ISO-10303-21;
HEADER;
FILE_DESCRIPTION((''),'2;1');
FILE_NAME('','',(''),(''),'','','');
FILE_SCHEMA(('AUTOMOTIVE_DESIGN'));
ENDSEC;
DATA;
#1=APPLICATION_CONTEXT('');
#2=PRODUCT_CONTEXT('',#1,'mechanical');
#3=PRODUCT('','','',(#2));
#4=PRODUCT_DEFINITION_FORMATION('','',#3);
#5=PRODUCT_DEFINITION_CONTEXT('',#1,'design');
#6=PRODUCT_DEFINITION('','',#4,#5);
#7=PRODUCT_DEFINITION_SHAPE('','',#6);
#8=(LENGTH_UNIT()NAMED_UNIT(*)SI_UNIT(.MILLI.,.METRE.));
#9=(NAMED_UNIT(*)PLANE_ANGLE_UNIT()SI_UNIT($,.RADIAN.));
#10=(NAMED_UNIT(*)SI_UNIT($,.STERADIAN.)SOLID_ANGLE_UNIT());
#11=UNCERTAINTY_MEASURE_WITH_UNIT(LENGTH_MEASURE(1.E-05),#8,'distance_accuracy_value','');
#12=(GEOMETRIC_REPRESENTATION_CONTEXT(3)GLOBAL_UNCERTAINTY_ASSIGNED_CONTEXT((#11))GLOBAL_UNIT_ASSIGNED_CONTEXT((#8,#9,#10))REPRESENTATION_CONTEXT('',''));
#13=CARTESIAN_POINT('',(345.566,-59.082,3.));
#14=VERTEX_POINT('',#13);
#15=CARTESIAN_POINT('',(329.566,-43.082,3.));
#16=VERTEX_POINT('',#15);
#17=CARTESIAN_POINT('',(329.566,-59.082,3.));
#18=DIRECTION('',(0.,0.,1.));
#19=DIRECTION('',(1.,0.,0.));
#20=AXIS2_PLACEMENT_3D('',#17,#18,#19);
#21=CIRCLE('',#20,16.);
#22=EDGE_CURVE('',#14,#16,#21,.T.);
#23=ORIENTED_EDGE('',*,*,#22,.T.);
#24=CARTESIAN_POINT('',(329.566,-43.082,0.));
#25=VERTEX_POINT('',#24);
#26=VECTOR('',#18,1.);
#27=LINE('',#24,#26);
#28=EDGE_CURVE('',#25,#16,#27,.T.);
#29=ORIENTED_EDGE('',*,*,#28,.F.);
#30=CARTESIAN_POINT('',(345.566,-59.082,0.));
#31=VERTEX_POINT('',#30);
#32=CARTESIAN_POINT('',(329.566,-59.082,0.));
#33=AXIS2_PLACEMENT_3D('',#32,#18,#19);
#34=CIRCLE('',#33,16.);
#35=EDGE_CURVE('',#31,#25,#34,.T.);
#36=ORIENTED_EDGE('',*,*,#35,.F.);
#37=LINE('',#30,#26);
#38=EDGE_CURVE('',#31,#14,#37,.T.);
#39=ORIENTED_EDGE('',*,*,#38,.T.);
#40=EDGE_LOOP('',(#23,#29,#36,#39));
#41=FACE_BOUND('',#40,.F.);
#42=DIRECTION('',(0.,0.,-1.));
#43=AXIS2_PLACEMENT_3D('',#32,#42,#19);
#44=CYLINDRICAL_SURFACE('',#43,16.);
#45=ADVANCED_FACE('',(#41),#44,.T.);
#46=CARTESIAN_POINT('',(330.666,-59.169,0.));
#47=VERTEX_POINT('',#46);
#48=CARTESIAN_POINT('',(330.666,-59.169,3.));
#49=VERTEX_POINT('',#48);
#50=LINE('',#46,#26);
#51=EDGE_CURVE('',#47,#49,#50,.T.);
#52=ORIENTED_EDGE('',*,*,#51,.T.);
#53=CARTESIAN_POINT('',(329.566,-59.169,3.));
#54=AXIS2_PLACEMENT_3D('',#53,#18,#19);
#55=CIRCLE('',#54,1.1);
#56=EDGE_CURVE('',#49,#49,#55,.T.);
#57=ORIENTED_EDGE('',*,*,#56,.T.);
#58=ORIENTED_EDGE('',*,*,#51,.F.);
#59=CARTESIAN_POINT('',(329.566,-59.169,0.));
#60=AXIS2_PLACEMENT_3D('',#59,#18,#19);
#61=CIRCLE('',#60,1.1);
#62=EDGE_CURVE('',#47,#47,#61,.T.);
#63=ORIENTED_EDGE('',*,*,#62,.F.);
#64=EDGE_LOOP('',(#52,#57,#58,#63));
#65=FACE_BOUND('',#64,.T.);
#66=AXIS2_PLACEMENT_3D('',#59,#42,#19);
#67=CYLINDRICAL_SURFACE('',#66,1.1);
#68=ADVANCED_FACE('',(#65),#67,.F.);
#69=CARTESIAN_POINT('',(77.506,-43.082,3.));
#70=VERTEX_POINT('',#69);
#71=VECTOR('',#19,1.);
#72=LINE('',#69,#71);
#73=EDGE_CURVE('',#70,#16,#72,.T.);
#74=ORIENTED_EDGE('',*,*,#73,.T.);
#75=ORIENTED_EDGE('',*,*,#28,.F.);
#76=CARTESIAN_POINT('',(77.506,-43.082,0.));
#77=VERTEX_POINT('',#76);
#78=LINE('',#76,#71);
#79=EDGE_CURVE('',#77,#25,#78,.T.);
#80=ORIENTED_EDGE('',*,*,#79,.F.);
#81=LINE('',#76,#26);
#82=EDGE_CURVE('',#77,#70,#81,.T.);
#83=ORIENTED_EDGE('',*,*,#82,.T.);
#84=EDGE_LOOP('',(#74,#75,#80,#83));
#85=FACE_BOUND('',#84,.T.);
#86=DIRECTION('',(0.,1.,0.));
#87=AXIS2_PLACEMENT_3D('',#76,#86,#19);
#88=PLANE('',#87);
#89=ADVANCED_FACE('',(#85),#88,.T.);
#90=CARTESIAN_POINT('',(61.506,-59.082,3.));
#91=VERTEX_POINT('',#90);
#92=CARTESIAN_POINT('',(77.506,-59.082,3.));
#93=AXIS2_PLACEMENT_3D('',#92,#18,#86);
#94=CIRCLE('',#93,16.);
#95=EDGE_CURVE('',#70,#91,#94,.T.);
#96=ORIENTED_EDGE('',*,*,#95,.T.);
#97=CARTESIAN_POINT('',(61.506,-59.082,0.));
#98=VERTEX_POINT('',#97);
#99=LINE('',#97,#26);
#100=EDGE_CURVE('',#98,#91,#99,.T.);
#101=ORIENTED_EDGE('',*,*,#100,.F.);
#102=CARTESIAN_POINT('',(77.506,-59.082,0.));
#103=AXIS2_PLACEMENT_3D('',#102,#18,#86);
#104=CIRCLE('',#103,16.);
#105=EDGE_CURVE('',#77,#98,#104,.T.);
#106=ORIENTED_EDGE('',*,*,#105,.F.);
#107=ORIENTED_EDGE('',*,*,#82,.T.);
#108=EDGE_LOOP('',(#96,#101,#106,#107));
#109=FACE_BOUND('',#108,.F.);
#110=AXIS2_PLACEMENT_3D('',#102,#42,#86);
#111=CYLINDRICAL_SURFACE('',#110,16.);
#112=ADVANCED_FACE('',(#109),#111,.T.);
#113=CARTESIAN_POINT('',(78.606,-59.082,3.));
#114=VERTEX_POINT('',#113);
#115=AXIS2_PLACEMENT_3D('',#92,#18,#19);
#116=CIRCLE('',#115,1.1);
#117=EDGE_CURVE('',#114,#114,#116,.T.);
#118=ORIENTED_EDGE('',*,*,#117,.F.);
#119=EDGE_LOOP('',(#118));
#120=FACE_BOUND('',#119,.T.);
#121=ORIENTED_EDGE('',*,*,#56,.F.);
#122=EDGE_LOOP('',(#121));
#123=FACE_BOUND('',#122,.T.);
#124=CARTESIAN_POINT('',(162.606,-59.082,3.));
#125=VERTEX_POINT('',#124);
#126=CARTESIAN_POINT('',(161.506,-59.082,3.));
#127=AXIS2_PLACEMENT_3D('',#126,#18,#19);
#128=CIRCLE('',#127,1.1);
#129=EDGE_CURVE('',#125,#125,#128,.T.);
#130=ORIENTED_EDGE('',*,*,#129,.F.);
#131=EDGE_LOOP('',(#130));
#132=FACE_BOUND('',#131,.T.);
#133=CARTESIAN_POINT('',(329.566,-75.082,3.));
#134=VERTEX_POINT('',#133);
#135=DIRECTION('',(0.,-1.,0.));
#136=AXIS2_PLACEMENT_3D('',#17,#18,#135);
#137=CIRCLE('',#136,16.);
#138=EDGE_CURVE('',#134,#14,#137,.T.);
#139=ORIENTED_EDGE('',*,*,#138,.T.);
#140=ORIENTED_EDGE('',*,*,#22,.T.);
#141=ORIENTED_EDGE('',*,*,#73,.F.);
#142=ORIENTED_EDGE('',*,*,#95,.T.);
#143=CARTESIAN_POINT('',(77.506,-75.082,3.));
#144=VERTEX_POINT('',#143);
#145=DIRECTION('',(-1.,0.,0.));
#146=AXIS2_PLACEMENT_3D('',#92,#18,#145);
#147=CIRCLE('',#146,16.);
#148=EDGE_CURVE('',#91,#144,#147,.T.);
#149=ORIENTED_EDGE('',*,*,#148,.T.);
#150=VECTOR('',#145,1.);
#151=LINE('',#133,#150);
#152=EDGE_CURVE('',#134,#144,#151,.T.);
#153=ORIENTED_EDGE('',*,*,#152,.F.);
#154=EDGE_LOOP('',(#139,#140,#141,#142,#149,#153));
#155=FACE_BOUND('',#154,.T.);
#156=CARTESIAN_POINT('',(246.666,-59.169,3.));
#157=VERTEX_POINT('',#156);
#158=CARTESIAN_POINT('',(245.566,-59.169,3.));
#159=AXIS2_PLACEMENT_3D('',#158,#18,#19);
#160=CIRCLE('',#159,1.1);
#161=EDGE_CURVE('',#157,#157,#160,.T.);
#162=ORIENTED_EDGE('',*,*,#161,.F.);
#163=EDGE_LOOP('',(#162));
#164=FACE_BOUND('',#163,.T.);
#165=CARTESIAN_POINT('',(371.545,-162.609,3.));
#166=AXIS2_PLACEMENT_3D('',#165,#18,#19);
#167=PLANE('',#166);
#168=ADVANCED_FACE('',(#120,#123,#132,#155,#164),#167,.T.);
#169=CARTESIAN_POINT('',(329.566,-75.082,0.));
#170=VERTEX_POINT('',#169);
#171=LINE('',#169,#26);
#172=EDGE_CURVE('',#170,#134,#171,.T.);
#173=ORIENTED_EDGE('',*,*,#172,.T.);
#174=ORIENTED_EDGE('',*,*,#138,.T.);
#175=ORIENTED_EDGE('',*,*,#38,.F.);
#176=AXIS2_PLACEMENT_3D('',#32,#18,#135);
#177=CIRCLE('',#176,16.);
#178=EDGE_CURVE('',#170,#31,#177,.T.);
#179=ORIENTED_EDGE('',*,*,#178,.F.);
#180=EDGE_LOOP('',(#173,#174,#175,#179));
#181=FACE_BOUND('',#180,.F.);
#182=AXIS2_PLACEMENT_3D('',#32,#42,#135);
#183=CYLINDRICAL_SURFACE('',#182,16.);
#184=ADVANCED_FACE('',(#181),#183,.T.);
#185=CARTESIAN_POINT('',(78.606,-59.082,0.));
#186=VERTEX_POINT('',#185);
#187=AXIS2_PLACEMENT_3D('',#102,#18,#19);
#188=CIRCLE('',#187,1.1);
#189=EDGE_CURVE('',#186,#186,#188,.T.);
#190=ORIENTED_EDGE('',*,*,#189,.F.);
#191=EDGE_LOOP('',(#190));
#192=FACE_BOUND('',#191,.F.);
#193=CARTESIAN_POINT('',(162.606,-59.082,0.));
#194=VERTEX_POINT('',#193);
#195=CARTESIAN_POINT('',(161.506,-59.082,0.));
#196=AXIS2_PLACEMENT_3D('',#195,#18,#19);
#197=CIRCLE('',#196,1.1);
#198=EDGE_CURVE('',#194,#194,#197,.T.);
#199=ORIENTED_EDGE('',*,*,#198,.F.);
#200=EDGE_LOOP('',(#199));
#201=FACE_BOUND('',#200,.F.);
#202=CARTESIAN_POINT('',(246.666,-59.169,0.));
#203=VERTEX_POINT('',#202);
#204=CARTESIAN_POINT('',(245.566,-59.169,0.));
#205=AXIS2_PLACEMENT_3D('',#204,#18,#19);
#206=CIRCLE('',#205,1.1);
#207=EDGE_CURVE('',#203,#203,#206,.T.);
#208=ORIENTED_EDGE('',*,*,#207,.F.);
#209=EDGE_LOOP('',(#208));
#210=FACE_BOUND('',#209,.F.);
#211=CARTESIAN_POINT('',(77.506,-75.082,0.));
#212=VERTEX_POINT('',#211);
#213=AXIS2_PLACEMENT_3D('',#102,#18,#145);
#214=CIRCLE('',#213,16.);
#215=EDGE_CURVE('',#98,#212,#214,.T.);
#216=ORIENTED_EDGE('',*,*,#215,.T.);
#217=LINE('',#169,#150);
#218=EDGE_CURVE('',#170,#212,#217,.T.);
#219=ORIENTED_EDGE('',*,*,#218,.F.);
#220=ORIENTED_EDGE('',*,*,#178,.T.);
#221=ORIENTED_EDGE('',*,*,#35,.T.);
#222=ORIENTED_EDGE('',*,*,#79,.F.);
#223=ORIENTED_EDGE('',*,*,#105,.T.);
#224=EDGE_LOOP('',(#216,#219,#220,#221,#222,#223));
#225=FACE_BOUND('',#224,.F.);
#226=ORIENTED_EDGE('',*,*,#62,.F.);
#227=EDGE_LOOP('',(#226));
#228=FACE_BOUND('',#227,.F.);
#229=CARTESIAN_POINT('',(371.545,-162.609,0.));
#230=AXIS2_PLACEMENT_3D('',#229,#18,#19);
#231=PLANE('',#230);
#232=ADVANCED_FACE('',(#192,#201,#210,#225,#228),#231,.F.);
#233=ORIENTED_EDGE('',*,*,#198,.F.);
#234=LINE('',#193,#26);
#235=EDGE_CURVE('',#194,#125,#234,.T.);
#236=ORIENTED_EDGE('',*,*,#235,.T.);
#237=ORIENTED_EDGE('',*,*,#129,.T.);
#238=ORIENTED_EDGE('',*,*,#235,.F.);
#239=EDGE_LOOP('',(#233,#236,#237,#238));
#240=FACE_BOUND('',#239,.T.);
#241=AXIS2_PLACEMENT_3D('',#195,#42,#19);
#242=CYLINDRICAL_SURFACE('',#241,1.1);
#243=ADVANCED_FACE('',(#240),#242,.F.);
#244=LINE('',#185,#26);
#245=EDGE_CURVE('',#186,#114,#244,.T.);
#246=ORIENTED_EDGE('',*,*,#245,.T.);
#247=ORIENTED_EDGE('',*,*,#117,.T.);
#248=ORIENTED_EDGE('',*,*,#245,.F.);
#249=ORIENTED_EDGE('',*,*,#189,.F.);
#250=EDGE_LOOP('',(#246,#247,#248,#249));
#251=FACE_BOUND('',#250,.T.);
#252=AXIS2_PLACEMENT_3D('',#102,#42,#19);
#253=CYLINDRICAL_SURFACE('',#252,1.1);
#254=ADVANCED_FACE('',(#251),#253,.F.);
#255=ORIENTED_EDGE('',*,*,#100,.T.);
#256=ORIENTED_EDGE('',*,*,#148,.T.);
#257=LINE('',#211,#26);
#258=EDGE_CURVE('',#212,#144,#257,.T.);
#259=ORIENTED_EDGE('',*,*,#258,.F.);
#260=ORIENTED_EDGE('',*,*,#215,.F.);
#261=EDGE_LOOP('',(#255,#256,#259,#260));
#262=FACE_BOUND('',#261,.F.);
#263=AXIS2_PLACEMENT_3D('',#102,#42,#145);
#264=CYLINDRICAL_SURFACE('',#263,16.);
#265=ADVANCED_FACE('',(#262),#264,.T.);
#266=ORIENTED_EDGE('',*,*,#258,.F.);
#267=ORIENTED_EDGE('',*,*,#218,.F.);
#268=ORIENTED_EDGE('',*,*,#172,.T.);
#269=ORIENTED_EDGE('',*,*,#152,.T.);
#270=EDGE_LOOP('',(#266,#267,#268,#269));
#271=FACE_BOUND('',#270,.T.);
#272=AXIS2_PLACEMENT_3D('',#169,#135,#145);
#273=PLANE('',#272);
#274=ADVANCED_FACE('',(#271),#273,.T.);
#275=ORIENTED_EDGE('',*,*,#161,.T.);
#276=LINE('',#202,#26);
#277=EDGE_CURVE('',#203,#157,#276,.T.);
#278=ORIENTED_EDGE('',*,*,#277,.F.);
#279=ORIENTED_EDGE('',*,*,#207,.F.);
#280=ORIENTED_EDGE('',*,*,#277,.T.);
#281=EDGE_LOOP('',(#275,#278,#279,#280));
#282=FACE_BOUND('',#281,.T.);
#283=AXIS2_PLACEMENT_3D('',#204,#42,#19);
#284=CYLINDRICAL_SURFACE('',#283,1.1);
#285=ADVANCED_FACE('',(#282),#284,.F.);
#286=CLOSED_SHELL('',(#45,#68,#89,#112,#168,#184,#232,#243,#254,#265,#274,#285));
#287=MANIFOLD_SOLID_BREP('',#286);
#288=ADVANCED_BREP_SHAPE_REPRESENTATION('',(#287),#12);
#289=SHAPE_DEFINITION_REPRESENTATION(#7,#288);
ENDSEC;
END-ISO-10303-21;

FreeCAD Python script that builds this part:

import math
import FreeCAD as App
import Part
import Sketcher
from FreeCAD import Vector

doc = App.newDocument("Part")
params = doc.addObject("Spreadsheet::Sheet", "Params")
for row, (alias, value) in enumerate([
    ("sketch1_radius", "16 mm"),
    ("sketch1_diameter", "2.2 mm"),
    ("sketch1_width", "252.06 mm"),
    ("pad1_length", "3 mm"),
], start=1):
    params.set(f"A{row}", alias)
    params.set(f"B{row}", "=" + value)
    params.setAlias(f"B{row}", alias)

body = doc.addObject("PartDesign::Body", "Body")

# Sketch on XY plane
sketch1 = doc.addObject("Sketcher::SketchObject", "Sketch")
body.addObject(sketch1)
sketch1.AttachmentSupport = (doc.XY_Plane, [""])
sketch1.MapMode = "FlatFace"
sketch1.addGeometry(Part.LineSegment(Vector(329.6, -43.1, 0), Vector(77.5, -43.1, 0)), False)
sketch1.addGeometry(Part.ArcOfCircle(Part.Circle(Vector(77.5, -59.1, 0), Vector(0, 0, 1), 16), math.radians(90), math.radians(270)), False)
sketch1.addGeometry(Part.LineSegment(Vector(77.5, -75.1, 0), Vector(329.6, -75.1, 0)), False)
sketch1.addGeometry(Part.ArcOfCircle(Part.Circle(Vector(329.6, -59.1, 0), Vector(0, 0, 1), 16), math.radians(-90), math.radians(90)), False)
sketch1.addGeometry(Part.Circle(Vector(245.6, -59.2, 0), Vector(0, 0, 1), 1.1), False)
sketch1.addGeometry(Part.Circle(Vector(329.6, -59.2, 0), Vector(0, 0, 1), 1.1), False)
sketch1.addGeometry(Part.Circle(Vector(77.5, -59.1, 0), Vector(0, 0, 1), 1.1), False)
sketch1.addGeometry(Part.Circle(Vector(161.5, -59.1, 0), Vector(0, 0, 1), 1.1), False)
sketch1.addConstraint(Sketcher.Constraint("Tangent", 0, 2, 1, 1))
sketch1.addConstraint(Sketcher.Constraint("Tangent", 1, 2, 2, 1))
sketch1.addConstraint(Sketcher.Constraint("Tangent", 2, 2, 3, 1))
sketch1.addConstraint(Sketcher.Constraint("Tangent", 3, 2, 0, 1))
sketch1.addConstraint(Sketcher.Constraint("Horizontal", 0))
sketch1.addConstraint(Sketcher.Constraint("Horizontal", 2))
sketch1.addConstraint(Sketcher.Constraint("Coincident", 6, 3, 1, 3))
sketch1.addConstraint(Sketcher.Constraint("Equal", 4, 5))
sketch1.addConstraint(Sketcher.Constraint("Equal", 5, 6))
sketch1.addConstraint(Sketcher.Constraint("Equal", 6, 7))
sketch1.addConstraint(Sketcher.Constraint("Horizontal", 4, 3, 5, 3))
sketch1.addConstraint(Sketcher.Constraint("Horizontal", 6, 3, 7, 3))
sketch1.addConstraint(Sketcher.Constraint("Vertical", 3, 3, 5, 3))
sketch1.addConstraint(Sketcher.Constraint("Radius", 1, 16.0))
sketch1.addConstraint(Sketcher.Constraint("Diameter", 4, 2.2))
sketch1.addConstraint(Sketcher.Constraint("DistanceX", 4, 3, 3, 3, 84.0))
sketch1.addConstraint(Sketcher.Constraint("DistanceX", 1, 3, 7, 3, 84.0))
sketch1.addConstraint(Sketcher.Constraint("DistanceX", 0, 2, 0, 1, 252.06))
sketch1.addConstraint(Sketcher.Constraint("DistanceX", -1, 1, 1, 3, 77.506))
sketch1.addConstraint(Sketcher.Constraint("DistanceY", 1, 3, -1, 1, 59.082))
sketch1.addConstraint(Sketcher.Constraint("DistanceY", 4, 3, -1, 1, 59.169))
sketch1.setExpression("Constraints[13]", "Params.sketch1_radius")
sketch1.setExpression("Constraints[14]", "Params.sketch1_diameter")
sketch1.setExpression("Constraints[17]", "Params.sketch1_width")
pad1 = doc.addObject("PartDesign::Pad", "Pad")
body.addObject(pad1)
pad1.Profile = sketch1
pad1.setExpression("Length", "Params.pad1_length")

doc.recompute()
